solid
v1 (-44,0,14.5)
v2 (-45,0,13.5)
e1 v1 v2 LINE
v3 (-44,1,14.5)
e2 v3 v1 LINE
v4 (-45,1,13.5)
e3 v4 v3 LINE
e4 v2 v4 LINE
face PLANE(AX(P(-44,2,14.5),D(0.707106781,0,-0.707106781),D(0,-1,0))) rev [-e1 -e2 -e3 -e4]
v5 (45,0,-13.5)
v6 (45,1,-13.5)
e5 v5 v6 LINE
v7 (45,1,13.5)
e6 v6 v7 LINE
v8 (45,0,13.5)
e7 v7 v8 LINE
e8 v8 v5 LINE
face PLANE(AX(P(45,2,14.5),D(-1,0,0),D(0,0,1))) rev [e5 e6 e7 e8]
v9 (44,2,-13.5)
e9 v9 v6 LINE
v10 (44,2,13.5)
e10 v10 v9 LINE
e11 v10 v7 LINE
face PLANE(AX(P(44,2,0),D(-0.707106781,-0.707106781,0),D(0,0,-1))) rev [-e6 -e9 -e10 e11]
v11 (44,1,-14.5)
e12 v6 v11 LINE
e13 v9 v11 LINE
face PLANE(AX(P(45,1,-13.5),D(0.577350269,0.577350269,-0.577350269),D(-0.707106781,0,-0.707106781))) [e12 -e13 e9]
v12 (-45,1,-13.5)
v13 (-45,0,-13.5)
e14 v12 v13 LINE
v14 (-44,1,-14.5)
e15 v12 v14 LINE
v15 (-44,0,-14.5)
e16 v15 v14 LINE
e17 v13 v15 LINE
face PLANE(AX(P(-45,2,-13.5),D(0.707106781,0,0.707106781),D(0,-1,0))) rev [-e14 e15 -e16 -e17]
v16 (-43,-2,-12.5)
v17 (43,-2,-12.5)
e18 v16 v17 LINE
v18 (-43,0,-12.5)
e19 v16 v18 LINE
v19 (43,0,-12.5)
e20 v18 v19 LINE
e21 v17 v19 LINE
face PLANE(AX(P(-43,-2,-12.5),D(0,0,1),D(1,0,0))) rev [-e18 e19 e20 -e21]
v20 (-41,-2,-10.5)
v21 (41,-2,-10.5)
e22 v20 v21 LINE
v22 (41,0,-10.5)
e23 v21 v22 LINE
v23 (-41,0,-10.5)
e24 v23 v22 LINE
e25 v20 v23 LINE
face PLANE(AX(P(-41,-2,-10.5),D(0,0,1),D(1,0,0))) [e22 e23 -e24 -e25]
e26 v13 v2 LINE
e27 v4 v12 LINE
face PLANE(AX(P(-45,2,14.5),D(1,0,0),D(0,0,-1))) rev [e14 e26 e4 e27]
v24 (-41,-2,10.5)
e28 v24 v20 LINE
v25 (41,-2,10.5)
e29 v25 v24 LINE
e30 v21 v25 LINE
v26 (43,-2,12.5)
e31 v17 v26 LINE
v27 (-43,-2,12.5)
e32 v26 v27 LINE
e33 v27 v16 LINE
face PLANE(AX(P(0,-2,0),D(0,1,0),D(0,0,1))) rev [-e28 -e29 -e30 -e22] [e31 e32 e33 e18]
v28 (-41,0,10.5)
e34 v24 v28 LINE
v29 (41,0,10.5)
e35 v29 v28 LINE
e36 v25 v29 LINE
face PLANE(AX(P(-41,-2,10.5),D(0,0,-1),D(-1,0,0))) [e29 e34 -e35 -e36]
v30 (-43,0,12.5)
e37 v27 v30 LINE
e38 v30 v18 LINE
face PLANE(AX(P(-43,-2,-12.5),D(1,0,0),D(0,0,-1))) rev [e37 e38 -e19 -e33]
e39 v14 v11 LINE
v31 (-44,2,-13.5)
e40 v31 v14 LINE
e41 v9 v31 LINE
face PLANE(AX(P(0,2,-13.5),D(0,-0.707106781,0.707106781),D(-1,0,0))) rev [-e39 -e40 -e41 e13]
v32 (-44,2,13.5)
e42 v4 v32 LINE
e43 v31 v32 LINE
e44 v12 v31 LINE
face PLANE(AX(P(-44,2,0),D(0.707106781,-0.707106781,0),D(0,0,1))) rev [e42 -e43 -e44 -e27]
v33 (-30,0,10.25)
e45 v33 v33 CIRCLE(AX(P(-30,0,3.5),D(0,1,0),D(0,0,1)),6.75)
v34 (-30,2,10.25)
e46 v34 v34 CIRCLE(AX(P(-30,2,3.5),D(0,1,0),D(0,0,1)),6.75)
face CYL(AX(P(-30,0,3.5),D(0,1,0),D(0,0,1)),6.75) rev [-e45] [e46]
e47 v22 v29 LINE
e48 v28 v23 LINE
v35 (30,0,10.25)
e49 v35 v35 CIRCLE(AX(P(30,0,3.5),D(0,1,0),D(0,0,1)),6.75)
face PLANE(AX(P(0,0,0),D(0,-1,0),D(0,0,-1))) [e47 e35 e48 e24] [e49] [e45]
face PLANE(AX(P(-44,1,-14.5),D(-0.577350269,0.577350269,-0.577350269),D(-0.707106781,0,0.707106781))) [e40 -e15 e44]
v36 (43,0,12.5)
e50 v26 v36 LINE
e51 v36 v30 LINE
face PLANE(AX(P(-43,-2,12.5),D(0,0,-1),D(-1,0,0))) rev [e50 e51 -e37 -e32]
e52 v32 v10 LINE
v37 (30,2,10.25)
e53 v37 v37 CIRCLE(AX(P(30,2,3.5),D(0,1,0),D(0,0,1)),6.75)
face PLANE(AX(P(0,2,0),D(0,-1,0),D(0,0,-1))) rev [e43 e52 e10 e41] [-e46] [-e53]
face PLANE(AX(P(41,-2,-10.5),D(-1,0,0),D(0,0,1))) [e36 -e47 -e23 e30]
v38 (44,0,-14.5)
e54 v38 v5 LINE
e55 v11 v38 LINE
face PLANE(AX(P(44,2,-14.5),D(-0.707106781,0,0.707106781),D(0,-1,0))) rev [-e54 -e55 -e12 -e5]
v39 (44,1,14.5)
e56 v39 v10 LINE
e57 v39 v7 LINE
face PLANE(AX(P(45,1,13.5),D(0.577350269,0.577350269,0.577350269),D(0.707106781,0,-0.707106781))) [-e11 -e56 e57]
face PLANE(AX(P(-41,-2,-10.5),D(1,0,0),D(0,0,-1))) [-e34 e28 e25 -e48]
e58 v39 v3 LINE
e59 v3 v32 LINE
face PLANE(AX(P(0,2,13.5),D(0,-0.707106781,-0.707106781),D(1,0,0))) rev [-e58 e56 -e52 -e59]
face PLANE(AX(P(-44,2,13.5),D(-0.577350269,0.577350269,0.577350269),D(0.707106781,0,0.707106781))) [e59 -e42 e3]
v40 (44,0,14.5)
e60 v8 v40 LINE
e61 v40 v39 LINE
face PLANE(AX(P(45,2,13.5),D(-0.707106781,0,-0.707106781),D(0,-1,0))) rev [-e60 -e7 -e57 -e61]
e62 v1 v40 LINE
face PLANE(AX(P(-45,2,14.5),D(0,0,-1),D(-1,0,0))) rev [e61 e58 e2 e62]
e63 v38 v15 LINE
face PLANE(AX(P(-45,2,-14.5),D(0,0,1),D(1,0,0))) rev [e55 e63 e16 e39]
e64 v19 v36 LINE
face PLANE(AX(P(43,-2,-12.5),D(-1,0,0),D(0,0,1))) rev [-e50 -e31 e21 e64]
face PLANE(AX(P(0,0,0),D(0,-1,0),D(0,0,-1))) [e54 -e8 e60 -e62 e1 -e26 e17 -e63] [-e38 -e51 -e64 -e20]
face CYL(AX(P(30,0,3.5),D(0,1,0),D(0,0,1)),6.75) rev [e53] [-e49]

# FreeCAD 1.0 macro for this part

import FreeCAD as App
import Part
import Sketcher
from FreeCAD import Vector
Q = App.Units.Quantity


def edges_at(feature, points):
    """Names of the edges that pass closest to the given points."""
    edges = feature.Shape.Edges
    near = lambda p: min(range(len(edges)), key=lambda i: edges[i].distToShape(Part.Vertex(*p))[0])
    return sorted({f"Edge{near(p) + 1}" for p in points})


def add_polygon(sketch, points):
    """Adds a closed chain of lines whose ends are joined by coincident constraints."""
    first, n = sketch.GeometryCount, len(points)
    for a, b in zip(points, points[1:] + points[:1]):
        sketch.addGeometry(Part.LineSegment(App.Vector(*a, 0), App.Vector(*b, 0)), False)
    for i in range(n):
        sketch.addConstraint(Sketcher.Constraint("Coincident", first + i, 2, first + (i + 1) % n, 1))

doc = App.newDocument("Part")
body = doc.addObject("PartDesign::Body", "Body")

sketch1 = doc.addObject("Sketcher::SketchObject", "Sketch")
body.addObject(sketch1)
sketch1.AttachmentSupport = (doc.XZ_Plane, [""])
sketch1.MapMode = "FlatFace"
add_polygon(sketch1, [(-45, -14), (-45, 14), (45, 14), (45, -14)])
sketch1.addConstraint(Sketcher.Constraint("Vertical", 0))
sketch1.addConstraint(Sketcher.Constraint("Horizontal", 1))
sketch1.addConstraint(Sketcher.Constraint("Vertical", 2))
sketch1.addConstraint(Sketcher.Constraint("Horizontal", 3))
sketch1.addConstraint(Sketcher.Constraint("Symmetric", 0, 2, 2, 2, -1, 1))
sketch1.addConstraint(Sketcher.Constraint("DistanceX", 1, 1, 1, 2, Q("90 mm")))
sketch1.addConstraint(Sketcher.Constraint("DistanceY", 0, 1, 0, 2, Q("29 mm")))
pad1 = doc.addObject("PartDesign::Pad", "Pad")
body.addObject(pad1)
pad1.Profile = sketch1
pad1.Length = 2
pad1.Reversed = True
doc.recompute()

chamfer = doc.addObject("PartDesign::Chamfer", "Chamfer")
body.addObject(chamfer)
chamfer.Base = (pad1, edges_at(pad1, [
    (-45, 2, 0),
    (0, 2, 14.5),
    (45, 2, 0),
    (45, 1, 14.5),
    (-45, 1, 14.5),
    (-45, 1, -14.5),
    (45, 1, -14.5),
    (0, 2, -14.5),
]))
chamfer.Size = 1

sketch2 = doc.addObject("Sketcher::SketchObject", "Sketch001")
body.addObject(sketch2)
sketch2.AttachmentSupport = (doc.XZ_Plane, [""])
sketch2.MapMode = "FlatFace"
sketch2.AttachmentOffset = App.Placement(Vector(0, 0, -2), App.Rotation())
sketch2.addGeometry(Part.Circle(Vector(-30, 4, 0), Vector(0, 0, 1), 7), False)
sketch2.addGeometry(Part.Circle(Vector(30, 4, 0), Vector(0, 0, 1), 7), False)
sketch2.addConstraint(Sketcher.Constraint("Equal", 0, 1))
sketch2.addConstraint(Sketcher.Constraint("Symmetric", 0, 3, 1, 3, -2))
sketch2.addConstraint(Sketcher.Constraint("Diameter", 0, Q("13.5 mm")))
sketch2.addConstraint(Sketcher.Constraint("DistanceX", 0, 3, -1, 1, Q("30 mm")))
sketch2.addConstraint(Sketcher.Constraint("DistanceY", -1, 1, 0, 3, Q("3.5 mm")))
pocket1 = doc.addObject("PartDesign::Pocket", "Pocket")
body.addObject(pocket1)
pocket1.Profile = sketch2
pocket1.Type = "ThroughAll"
pocket1.Reversed = True

sketch3 = doc.addObject("Sketcher::SketchObject", "Sketch002")
body.addObject(sketch3)
sketch3.AttachmentSupport = (doc.XZ_Plane, [""])
sketch3.MapMode = "FlatFace"
add_polygon(sketch3, [(-43, 12), (-43, -12), (43, -12), (43, 12)])
add_polygon(sketch3, [(41, -10), (-41, -10), (-41, 10), (41, 10)])
sketch3.addConstraint(Sketcher.Constraint("Vertical", 0))
sketch3.addConstraint(Sketcher.Constraint("Horizontal", 1))
sketch3.addConstraint(Sketcher.Constraint("Vertical", 2))
sketch3.addConstraint(Sketcher.Constraint("Horizontal", 3))
sketch3.addConstraint(Sketcher.Constraint("Horizontal", 4))
sketch3.addConstraint(Sketcher.Constraint("Vertical", 5))
sketch3.addConstraint(Sketcher.Constraint("Horizontal", 6))
sketch3.addConstraint(Sketcher.Constraint("Vertical", 7))
sketch3.addConstraint(Sketcher.Constraint("Symmetric", 0, 2, 2, 2, -1, 1))
sketch3.addConstraint(Sketcher.Constraint("Symmetric", 4, 2, 6, 2, -1, 1))
sketch3.addConstraint(Sketcher.Constraint("DistanceX", 1, 1, 1, 2, Q("86 mm")))
sketch3.addConstraint(Sketcher.Constraint("DistanceX", 4, 2, 4, 1, Q("82 mm")))
sketch3.addConstraint(Sketcher.Constraint("DistanceY", 0, 2, 0, 1, Q("25 mm")))
sketch3.addConstraint(Sketcher.Constraint("DistanceY", 5, 1, 5, 2, Q("21 mm")))
pad2 = doc.addObject("PartDesign::Pad", "Pad001")
body.addObject(pad2)
pad2.Profile = sketch3
pad2.Length = 2

doc.recompute()
